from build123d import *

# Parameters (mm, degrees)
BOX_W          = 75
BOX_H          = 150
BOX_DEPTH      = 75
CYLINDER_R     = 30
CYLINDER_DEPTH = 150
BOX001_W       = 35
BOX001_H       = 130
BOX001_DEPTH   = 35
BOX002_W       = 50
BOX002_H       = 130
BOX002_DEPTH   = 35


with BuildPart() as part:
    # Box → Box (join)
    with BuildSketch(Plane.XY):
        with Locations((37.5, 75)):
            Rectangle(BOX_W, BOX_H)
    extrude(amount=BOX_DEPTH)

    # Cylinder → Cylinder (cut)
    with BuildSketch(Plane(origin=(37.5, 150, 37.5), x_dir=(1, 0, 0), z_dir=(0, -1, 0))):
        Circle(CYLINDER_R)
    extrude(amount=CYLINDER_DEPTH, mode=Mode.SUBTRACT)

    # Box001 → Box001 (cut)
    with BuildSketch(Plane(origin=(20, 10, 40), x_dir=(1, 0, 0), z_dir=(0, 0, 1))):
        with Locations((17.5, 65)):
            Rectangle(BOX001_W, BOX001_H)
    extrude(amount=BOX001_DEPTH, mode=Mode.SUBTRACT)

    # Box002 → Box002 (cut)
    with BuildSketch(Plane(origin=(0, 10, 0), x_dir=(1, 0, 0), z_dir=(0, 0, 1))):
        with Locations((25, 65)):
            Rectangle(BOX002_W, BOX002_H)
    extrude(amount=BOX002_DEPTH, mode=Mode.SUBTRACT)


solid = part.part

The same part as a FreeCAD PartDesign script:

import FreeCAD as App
import Part
import Sketcher
from FreeCAD import Vector


def add_polygon(sketch, points):
    """Adds a closed chain of lines whose ends are joined by coincident constraints."""
    first, n = sketch.GeometryCount, len(points)
    for a, b in zip(points, points[1:] + points[:1]):
        sketch.addGeometry(Part.LineSegment(App.Vector(*a, 0), App.Vector(*b, 0)), False)
    for i in range(n):
        sketch.addConstraint(Sketcher.Constraint("Coincident", first + i, 2, first + (i + 1) % n, 1))

doc = App.newDocument("Part")
body = doc.addObject("PartDesign::Body", "Body")

# Sketch on XY plane
sketch1 = doc.addObject("Sketcher::SketchObject", "Sketch")
body.addObject(sketch1)
sketch1.AttachmentSupport = (doc.XY_Plane, [""])
sketch1.MapMode = "FlatFace"
add_polygon(sketch1, [(0, 150), (0, 0), (75, 0), (75, 150)])  # lines 0-3
sketch1.addConstraint(Sketcher.Constraint("Vertical", 0))
sketch1.addConstraint(Sketcher.Constraint("Horizontal", 1))
sketch1.addConstraint(Sketcher.Constraint("Vertical", 2))
sketch1.addConstraint(Sketcher.Constraint("Horizontal", 3))
sketch1.addConstraint(Sketcher.Constraint("Coincident", 0, 2, -1, 1))
sketch1.addConstraint(Sketcher.Constraint("DistanceX", 1, 1, 1, 2, 75.0))
sketch1.addConstraint(Sketcher.Constraint("DistanceY", 0, 2, 0, 1, 150.0))
pad1 = doc.addObject("PartDesign::Pad", "Pad")
body.addObject(pad1)
pad1.Profile = sketch1
pad1.Length = 75

# Sketch on XZ plane
sketch2 = doc.addObject("Sketcher::SketchObject", "Sketch001")
body.addObject(sketch2)
sketch2.AttachmentSupport = (doc.XZ_Plane, [""])
sketch2.MapMode = "FlatFace"
sketch2.AttachmentOffset = App.Placement(Vector(0, 0, -150), App.Rotation())
sketch2.addGeometry(Part.Circle(Vector(37.5, 37.5, 0), Vector(0, 0, 1), 30), False)
sketch2.addConstraint(Sketcher.Constraint("Diameter", 0, 60.0))
sketch2.addConstraint(Sketcher.Constraint("DistanceX", -1, 1, 0, 3, 37.5))
sketch2.addConstraint(Sketcher.Constraint("DistanceY", -1, 1, 0, 3, 37.5))
pocket1 = doc.addObject("PartDesign::Pocket", "Pocket")
body.addObject(pocket1)
pocket1.Profile = sketch2
pocket1.Length = 150
pocket1.Reversed = True

# Sketch on XY plane
sketch3 = doc.addObject("Sketcher::SketchObject", "Sketch002")
body.addObject(sketch3)
sketch3.AttachmentSupport = (doc.XY_Plane, [""])
sketch3.MapMode = "FlatFace"
sketch3.AttachmentOffset = App.Placement(Vector(0, 0, 40), App.Rotation())
add_polygon(sketch3, [(20, 140), (20, 10), (55, 10), (55, 140)])  # lines 0-3
sketch3.addConstraint(Sketcher.Constraint("Vertical", 0))
sketch3.addConstraint(Sketcher.Constraint("Horizontal", 1))
sketch3.addConstraint(Sketcher.Constraint("Vertical", 2))
sketch3.addConstraint(Sketcher.Constraint("Horizontal", 3))
sketch3.addConstraint(Sketcher.Constraint("DistanceX", 1, 1, 1, 2, 35.0))
sketch3.addConstraint(Sketcher.Constraint("DistanceY", 0, 2, 0, 1, 130.0))
sketch3.addConstraint(Sketcher.Constraint("DistanceX", -1, 1, 0, 2, 20.0))
sketch3.addConstraint(Sketcher.Constraint("DistanceY", -1, 1, 0, 2, 10.0))
pocket2 = doc.addObject("PartDesign::Pocket", "Pocket001")
body.addObject(pocket2)
pocket2.Profile = sketch3
pocket2.Length = 35
pocket2.Reversed = True

# Sketch on XY plane
sketch4 = doc.addObject("Sketcher::SketchObject", "Sketch003")
body.addObject(sketch4)
sketch4.AttachmentSupport = (doc.XY_Plane, [""])
sketch4.MapMode = "FlatFace"
add_polygon(sketch4, [(0, 140), (0, 10), (50, 10), (50, 140)])  # lines 0-3
sketch4.addConstraint(Sketcher.Constraint("Vertical", 0))
sketch4.addConstraint(Sketcher.Constraint("Horizontal", 1))
sketch4.addConstraint(Sketcher.Constraint("Vertical", 2))
sketch4.addConstraint(Sketcher.Constraint("Horizontal", 3))
sketch4.addConstraint(Sketcher.Constraint("PointOnObject", 0, 2, -2))
sketch4.addConstraint(Sketcher.Constraint("DistanceX", 1, 1, 1, 2, 50.0))
sketch4.addConstraint(Sketcher.Constraint("DistanceY", 0, 2, 0, 1, 130.0))
sketch4.addConstraint(Sketcher.Constraint("DistanceY", -1, 1, 0, 2, 10.0))
pocket3 = doc.addObject("PartDesign::Pocket", "Pocket002")
body.addObject(pocket3)
pocket3.Profile = sketch4
pocket3.Length = 35
pocket3.Reversed = True

doc.recompute()
